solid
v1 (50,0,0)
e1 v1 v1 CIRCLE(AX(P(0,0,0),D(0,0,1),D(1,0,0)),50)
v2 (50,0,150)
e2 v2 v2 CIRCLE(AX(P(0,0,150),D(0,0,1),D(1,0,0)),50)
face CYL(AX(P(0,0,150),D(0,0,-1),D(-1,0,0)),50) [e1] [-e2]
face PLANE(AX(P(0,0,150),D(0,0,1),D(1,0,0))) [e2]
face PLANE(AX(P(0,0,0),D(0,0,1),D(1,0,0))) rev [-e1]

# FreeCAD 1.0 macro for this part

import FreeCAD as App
import Part
import Sketcher

V = App.Vector

doc = App.newDocument("Part")
body = doc.addObject("PartDesign::Body", "Body")

# Sketch on XY plane
sketch1 = body.newObject("Sketcher::SketchObject", "Sketch")
sketch1.AttachmentSupport = (doc.getObject("XY_Plane"), [""])
sketch1.MapMode = "FlatFace"
sketch1.addGeometry(Part.Circle(V(0, 0, 0), V(0, 0, 1), 50), False)
sketch1.addConstraint(Sketcher.Constraint("Coincident", 0, 3, -1, 1))
sketch1.addConstraint(Sketcher.Constraint("Diameter", 0, 100.0))
pad1 = body.newObject("PartDesign::Pad", "Pad")
pad1.Profile = sketch1
pad1.Length = 150

doc.recompute()
